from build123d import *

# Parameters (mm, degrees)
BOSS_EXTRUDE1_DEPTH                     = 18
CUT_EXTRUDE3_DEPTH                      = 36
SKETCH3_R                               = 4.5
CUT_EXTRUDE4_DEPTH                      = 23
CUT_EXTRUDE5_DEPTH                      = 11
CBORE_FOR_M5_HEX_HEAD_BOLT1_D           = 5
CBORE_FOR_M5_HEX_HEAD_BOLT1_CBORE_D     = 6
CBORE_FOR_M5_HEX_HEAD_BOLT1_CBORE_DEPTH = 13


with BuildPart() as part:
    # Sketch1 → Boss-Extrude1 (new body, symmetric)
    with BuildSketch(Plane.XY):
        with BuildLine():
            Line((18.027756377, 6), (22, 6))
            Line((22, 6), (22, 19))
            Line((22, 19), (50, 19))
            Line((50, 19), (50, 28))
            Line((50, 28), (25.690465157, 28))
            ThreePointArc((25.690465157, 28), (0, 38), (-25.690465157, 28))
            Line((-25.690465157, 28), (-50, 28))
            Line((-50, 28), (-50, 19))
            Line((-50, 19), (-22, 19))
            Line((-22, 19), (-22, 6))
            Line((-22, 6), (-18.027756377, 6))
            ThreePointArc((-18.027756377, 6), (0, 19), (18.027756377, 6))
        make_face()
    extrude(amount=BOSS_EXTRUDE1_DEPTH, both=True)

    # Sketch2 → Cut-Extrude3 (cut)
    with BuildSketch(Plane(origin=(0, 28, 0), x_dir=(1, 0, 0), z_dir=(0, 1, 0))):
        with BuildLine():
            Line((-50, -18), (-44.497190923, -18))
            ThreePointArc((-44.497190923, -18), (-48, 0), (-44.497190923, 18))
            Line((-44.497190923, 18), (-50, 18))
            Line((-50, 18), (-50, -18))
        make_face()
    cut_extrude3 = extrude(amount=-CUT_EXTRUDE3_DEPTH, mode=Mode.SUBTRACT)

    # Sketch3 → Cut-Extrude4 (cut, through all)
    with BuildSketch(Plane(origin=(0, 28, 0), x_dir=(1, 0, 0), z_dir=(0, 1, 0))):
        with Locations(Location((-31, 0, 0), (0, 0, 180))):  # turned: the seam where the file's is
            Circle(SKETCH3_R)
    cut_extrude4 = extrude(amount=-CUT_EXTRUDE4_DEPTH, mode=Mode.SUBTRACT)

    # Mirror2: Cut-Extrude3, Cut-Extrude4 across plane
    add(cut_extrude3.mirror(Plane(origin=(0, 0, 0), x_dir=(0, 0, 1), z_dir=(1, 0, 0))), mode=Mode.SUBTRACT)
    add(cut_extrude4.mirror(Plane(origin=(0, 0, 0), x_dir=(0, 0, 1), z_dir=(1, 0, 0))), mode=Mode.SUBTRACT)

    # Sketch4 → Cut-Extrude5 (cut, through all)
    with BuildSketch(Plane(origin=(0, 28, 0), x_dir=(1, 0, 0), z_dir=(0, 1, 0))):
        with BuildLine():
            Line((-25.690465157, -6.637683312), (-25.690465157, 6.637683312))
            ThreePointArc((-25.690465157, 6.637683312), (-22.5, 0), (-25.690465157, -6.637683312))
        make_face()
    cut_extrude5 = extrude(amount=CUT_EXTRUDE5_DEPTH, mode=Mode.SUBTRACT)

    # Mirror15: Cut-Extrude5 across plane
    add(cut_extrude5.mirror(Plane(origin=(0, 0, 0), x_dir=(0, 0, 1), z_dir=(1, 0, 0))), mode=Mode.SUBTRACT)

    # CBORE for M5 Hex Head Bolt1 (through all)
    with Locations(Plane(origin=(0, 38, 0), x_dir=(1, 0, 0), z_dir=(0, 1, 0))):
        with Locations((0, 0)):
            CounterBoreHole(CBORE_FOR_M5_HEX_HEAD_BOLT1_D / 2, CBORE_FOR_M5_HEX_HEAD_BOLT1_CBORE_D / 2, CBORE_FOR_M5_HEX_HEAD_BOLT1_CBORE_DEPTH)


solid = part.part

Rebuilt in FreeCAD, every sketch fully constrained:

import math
import FreeCAD as App
import Part
import Sketcher

doc = App.newDocument("Part")
body = doc.addObject("PartDesign::Body", "Body")

sketch1 = body.newObject("Sketcher::SketchObject", "Sketch")
sketch1.AttachmentSupport = (doc.getObject("XY_Plane"), [""])
sketch1.MapMode = "FlatFace"
sketch1.addGeometry([
    Part.LineSegment(App.Vector(18, 6, 0), App.Vector(22, 6, 0)),
    Part.LineSegment(App.Vector(22, 6, 0), App.Vector(22, 19, 0)),
    Part.LineSegment(App.Vector(22, 19, 0), App.Vector(50, 19, 0)),
    Part.LineSegment(App.Vector(50, 19, 0), App.Vector(50, 28, 0)),
    Part.LineSegment(App.Vector(50, 28, 0), App.Vector(25.7, 28, 0)),
    Part.ArcOfCircle(Part.Circle(App.Vector(0, 0, 0), App.Vector(0, 0, 1), 38), math.radians(47), math.radians(133)),
    Part.LineSegment(App.Vector(-25.7, 28, 0), App.Vector(-50, 28, 0)),
    Part.LineSegment(App.Vector(-50, 28, 0), App.Vector(-50, 19, 0)),
    Part.LineSegment(App.Vector(-50, 19, 0), App.Vector(-22, 19, 0)),
    Part.LineSegment(App.Vector(-22, 19, 0), App.Vector(-22, 6, 0)),
    Part.LineSegment(App.Vector(-22, 6, 0), App.Vector(-18, 6, 0)),
    Part.ArcOfCircle(Part.Circle(App.Vector(0, 0, 0), App.Vector(0, 0, 1), 19), math.radians(18), math.radians(162)),
], False)
sketch1.addConstraint([
    Sketcher.Constraint("Coincident", 0, 2, 1, 1),
    Sketcher.Constraint("Coincident", 1, 2, 2, 1),
    Sketcher.Constraint("Coincident", 2, 2, 3, 1),
    Sketcher.Constraint("Coincident", 3, 2, 4, 1),
    Sketcher.Constraint("Coincident", 4, 2, 5, 1),
    Sketcher.Constraint("Coincident", 5, 2, 6, 1),
    Sketcher.Constraint("Coincident", 6, 2, 7, 1),
    Sketcher.Constraint("Coincident", 7, 2, 8, 1),
    Sketcher.Constraint("Coincident", 8, 2, 9, 1),
    Sketcher.Constraint("Coincident", 9, 2, 10, 1),
    Sketcher.Constraint("Coincident", 10, 2, 11, 2),
    Sketcher.Constraint("Coincident", 11, 1, 0, 1),
    Sketcher.Constraint("Horizontal", 0),
    Sketcher.Constraint("Vertical", 1),
    Sketcher.Constraint("Horizontal", 2),
    Sketcher.Constraint("Vertical", 3),
    Sketcher.Constraint("Horizontal", 4),
    Sketcher.Constraint("Horizontal", 6),
    Sketcher.Constraint("Vertical", 7),
    Sketcher.Constraint("Horizontal", 8),
    Sketcher.Constraint("Vertical", 9),
    Sketcher.Constraint("Horizontal", 10),
    Sketcher.Constraint("Coincident", 5, 3, -1, 1),
    Sketcher.Constraint("Coincident", 11, 3, -1, 1),
    Sketcher.Constraint("Symmetric", 3, 2, 6, 2, -2),
    Sketcher.Constraint("Symmetric", 1, 2, 8, 2, -2),
    Sketcher.Constraint("Horizontal", 0, 2, 9, 2),
    Sketcher.Constraint("Radius", 5, 38.0),
    Sketcher.Constraint("Radius", 11, 19.0),
    Sketcher.Constraint("DistanceX", 2, 1, 2, 2, 28.0),
    Sketcher.Constraint("DistanceY", 1, 1, 1, 2, 13.0),
    Sketcher.Constraint("DistanceY", 3, 1, 3, 2, 9.0),
    Sketcher.Constraint("DistanceX", -1, 1, 0, 2, 22.0),
    Sketcher.Constraint("DistanceY", -1, 1, 0, 2, 6.0),
])
pad1 = body.newObject("PartDesign::Pad", "Pad")
pad1.Profile = sketch1
pad1.Length = 36
pad1.Midplane = True

sketch2 = body.newObject("Sketcher::SketchObject", "Sketch001")
sketch2.AttachmentSupport = (doc.getObject("XZ_Plane"), [""])
sketch2.MapMode = "FlatFace"
sketch2.AttachmentOffset = App.Placement(App.Vector(0, 0, -28), App.Rotation())
sketch2.addGeometry([
    Part.LineSegment(App.Vector(-50, 18, 0), App.Vector(-44, 18, 0)),
    Part.ArcOfCircle(Part.Circle(App.Vector(0, 0, 0), App.Vector(0, 0, 1), 48), math.radians(158), math.radians(202)),
    Part.LineSegment(App.Vector(-44, -18, 0), App.Vector(-50, -18, 0)),
    Part.LineSegment(App.Vector(-50, -18, 0), App.Vector(-50, 18, 0)),
], False)
sketch2.addConstraint([
    Sketcher.Constraint("Coincident", 0, 2, 1, 1),
    Sketcher.Constraint("Coincident", 1, 2, 2, 1),
    Sketcher.Constraint("Coincident", 2, 2, 3, 1),
    Sketcher.Constraint("Coincident", 3, 2, 0, 1),
    Sketcher.Constraint("Horizontal", 0),
    Sketcher.Constraint("Horizontal", 2),
    Sketcher.Constraint("Vertical", 3),
    Sketcher.Constraint("Coincident", 1, 3, -1, 1),
    Sketcher.Constraint("Vertical", 0, 2, 1, 2),
    Sketcher.Constraint("Radius", 1, 48.0),
    Sketcher.Constraint("DistanceY", 3, 1, 3, 2, 36.0),
    Sketcher.Constraint("DistanceX", 2, 2, -1, 1, 50.0),
])
pocket1 = body.newObject("PartDesign::Pocket", "Pocket")
pocket1.Profile = sketch2
pocket1.Length = 36
pocket1.Reversed = True

sketch3 = body.newObject("Sketcher::SketchObject", "Sketch002")
sketch3.AttachmentSupport = (doc.getObject("XZ_Plane"), [""])
sketch3.MapMode = "FlatFace"
sketch3.AttachmentOffset = App.Placement(App.Vector(0, 0, -28), App.Rotation())
sketch3.addGeometry(Part.Circle(App.Vector(-31, 0, 0), App.Vector(0, 0, 1), 4.5), False)
sketch3.addConstraint([
    Sketcher.Constraint("PointOnObject", 0, 3, -1),
    Sketcher.Constraint("Diameter", 0, 9.0),
    Sketcher.Constraint("DistanceX", 0, 3, -1, 1, 31.0),
])
pocket2 = body.newObject("PartDesign::Pocket", "Pocket001")
pocket2.Profile = sketch3
pocket2.Type = "ThroughAll"
pocket2.Reversed = True
doc.recompute()

mirrored = body.newObject("PartDesign::Mirrored", "Mirrored")
mirrored.Originals = [pocket1, pocket2]
mirrored.MirrorPlane = (doc.getObject("YZ_Plane"), [""])
body.Tip = mirrored

sketch4 = body.newObject("Sketcher::SketchObject", "Sketch003")
sketch4.AttachmentSupport = (doc.getObject("XZ_Plane"), [""])
sketch4.MapMode = "FlatFace"
sketch4.AttachmentOffset = App.Placement(App.Vector(0, 0, -28), App.Rotation())
sketch4.addGeometry([
    Part.LineSegment(App.Vector(-26, -7, 0), App.Vector(-26, 7, 0)),
    Part.ArcOfCircle(Part.Circle(App.Vector(-31, 0, 0), App.Vector(0, 0, 1), 8), math.radians(-51), math.radians(51)),
], False)
sketch4.addConstraint([
    Sketcher.Constraint("Coincident", 0, 1, 1, 1),
    Sketcher.Constraint("Coincident", 1, 2, 0, 2),
    Sketcher.Constraint("Vertical", 0),
    Sketcher.Constraint("PointOnObject", 1, 3, -1),
    Sketcher.Constraint("Radius", 1, 8.5),
    Sketcher.Constraint("DistanceX", 1, 3, -1, 1, 31.0),
    Sketcher.Constraint("DistanceY", 0, 1, 0, 2, 13.275367),
])
pocket3 = body.newObject("PartDesign::Pocket", "Pocket002")
pocket3.Profile = sketch4
pocket3.Type = "ThroughAll"
doc.recompute()

mirrored2 = body.newObject("PartDesign::Mirrored", "Mirrored001")
mirrored2.Originals = [pocket3]
mirrored2.MirrorPlane = (doc.getObject("YZ_Plane"), [""])
body.Tip = mirrored2

sketch5 = body.newObject("Sketcher::SketchObject", "Sketch004")
sketch5.AttachmentSupport = (doc.getObject("XZ_Plane"), [""])
sketch5.MapMode = "FlatFace"
sketch5.AttachmentOffset = App.Placement(App.Vector(0, 0, -38), App.Rotation())
sketch5.addGeometry(Part.Circle(App.Vector(0, 0, 0), App.Vector(0, 0, 1), 2.5), False)
sketch5.addConstraint([
    Sketcher.Constraint("Coincident", 0, 3, -1, 1),
    Sketcher.Constraint("Diameter", 0, 5.0),
])
doc.recompute()
hole = body.newObject("PartDesign::Hole", "Hole")
hole.Profile = sketch5
hole.ThreadType = "None"
hole.Diameter = 5
hole.DepthType = "ThroughAll"
hole.HoleCutType = "Counterbore"
hole.HoleCutDiameter = 6
hole.HoleCutDepth = 13
hole.Reversed = True

doc.recompute()
